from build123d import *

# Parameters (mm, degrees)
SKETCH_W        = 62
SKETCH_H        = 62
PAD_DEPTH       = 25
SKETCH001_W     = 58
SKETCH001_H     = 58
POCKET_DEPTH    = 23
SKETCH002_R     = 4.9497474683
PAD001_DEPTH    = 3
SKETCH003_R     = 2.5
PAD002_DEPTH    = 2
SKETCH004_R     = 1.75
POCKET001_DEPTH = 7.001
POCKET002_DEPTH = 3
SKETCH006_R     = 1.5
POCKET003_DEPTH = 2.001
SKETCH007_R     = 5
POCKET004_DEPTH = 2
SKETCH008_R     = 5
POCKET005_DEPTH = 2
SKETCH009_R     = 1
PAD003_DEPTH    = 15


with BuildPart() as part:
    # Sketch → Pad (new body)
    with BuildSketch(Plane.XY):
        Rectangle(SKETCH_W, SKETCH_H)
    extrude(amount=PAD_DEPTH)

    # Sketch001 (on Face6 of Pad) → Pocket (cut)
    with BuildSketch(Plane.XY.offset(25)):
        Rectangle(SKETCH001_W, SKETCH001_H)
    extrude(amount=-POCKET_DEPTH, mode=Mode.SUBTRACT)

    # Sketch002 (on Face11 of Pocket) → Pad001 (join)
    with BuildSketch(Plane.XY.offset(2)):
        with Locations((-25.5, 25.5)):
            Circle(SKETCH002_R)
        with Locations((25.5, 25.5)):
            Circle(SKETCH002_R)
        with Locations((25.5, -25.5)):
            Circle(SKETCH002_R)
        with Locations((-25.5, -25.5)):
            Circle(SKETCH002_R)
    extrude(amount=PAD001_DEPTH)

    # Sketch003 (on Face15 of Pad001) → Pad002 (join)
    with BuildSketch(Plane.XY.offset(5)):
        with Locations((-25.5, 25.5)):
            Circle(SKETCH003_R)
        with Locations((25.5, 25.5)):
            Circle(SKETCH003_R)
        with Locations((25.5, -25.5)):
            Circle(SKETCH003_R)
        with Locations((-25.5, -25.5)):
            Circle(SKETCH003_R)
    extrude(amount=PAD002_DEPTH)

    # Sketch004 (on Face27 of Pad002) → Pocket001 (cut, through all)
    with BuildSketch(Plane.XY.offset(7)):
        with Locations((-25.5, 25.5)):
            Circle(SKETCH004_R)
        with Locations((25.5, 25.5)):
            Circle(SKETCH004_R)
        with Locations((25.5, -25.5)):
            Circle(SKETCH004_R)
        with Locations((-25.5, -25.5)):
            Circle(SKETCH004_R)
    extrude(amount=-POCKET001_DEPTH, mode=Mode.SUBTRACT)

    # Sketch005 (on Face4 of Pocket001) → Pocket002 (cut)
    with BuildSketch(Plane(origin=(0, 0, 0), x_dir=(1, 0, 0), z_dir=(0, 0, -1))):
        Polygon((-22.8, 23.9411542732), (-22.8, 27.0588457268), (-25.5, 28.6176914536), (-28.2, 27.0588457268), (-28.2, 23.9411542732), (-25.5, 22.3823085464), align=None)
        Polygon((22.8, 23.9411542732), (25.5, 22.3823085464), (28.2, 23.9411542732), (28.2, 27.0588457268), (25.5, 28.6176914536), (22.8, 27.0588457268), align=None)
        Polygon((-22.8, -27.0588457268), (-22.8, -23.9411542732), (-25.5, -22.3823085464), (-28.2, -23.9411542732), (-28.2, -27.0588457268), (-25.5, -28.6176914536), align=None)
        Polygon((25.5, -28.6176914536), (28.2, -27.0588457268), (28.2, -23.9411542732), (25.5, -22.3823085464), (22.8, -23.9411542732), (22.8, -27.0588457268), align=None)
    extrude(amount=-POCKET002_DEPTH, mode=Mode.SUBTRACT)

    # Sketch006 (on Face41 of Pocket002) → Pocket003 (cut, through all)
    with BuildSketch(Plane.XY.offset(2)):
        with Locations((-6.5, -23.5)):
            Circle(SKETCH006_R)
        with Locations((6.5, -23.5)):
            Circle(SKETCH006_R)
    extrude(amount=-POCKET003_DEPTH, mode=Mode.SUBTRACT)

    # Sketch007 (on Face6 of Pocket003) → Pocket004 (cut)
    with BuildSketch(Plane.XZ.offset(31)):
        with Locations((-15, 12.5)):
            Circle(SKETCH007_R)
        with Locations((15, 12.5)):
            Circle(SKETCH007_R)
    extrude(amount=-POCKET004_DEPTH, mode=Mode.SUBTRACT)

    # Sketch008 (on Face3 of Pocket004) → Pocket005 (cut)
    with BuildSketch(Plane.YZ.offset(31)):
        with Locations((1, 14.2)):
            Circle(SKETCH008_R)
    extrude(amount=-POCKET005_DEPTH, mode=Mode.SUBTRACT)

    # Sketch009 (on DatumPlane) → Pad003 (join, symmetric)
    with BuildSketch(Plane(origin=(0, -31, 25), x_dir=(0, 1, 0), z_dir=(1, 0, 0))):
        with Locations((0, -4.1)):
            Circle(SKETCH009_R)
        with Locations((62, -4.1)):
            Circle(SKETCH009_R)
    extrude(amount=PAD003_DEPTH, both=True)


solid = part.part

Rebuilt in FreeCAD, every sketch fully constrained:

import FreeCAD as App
import Part
import Sketcher

V = App.Vector
Q = App.Units.Quantity

doc = App.newDocument("Part")
body = doc.addObject("PartDesign::Body", "Body")

# Sketch on XY plane
sketch1 = body.newObject("Sketcher::SketchObject", "Sketch")
sketch1.AttachmentSupport = (doc.getObject("XY_Plane"), [""])
sketch1.MapMode = "FlatFace"
sketch1.addGeometry([
    Part.LineSegment(V(-31, 31, 0), V(-31, -31, 0)),
    Part.LineSegment(V(-31, -31, 0), V(31, -31, 0)),
    Part.LineSegment(V(31, -31, 0), V(31, 31, 0)),
    Part.LineSegment(V(31, 31, 0), V(-31, 31, 0)),
], False)
sketch1.addConstraint([
    Sketcher.Constraint("Coincident", 0, 2, 1, 1),
    Sketcher.Constraint("Coincident", 1, 2, 2, 1),
    Sketcher.Constraint("Coincident", 2, 2, 3, 1),
    Sketcher.Constraint("Coincident", 3, 2, 0, 1),
    Sketcher.Constraint("Vertical", 0),
    Sketcher.Constraint("Horizontal", 1),
    Sketcher.Constraint("Vertical", 2),
    Sketcher.Constraint("Horizontal", 3),
    Sketcher.Constraint("Symmetric", 0, 2, 2, 2, -1, 1),
    Sketcher.Constraint("Equal", 3, 0),
    Sketcher.Constraint("DistanceX", 1, 1, 1, 2, 62.0),
])
pad1 = body.newObject("PartDesign::Pad", "Pad")
pad1.Profile = sketch1
pad1.Length = 25

# Sketch on XY plane
sketch2 = body.newObject("Sketcher::SketchObject", "Sketch001")
sketch2.AttachmentSupport = (doc.getObject("XY_Plane"), [""])
sketch2.MapMode = "FlatFace"
sketch2.AttachmentOffset = App.Placement(V(0, 0, 25), App.Rotation())
sketch2.addGeometry([
    Part.LineSegment(V(-29, 29, 0), V(-29, -29, 0)),
    Part.LineSegment(V(-29, -29, 0), V(29, -29, 0)),
    Part.LineSegment(V(29, -29, 0), V(29, 29, 0)),
    Part.LineSegment(V(29, 29, 0), V(-29, 29, 0)),
], False)
sketch2.addConstraint([
    Sketcher.Constraint("Coincident", 0, 2, 1, 1),
    Sketcher.Constraint("Coincident", 1, 2, 2, 1),
    Sketcher.Constraint("Coincident", 2, 2, 3, 1),
    Sketcher.Constraint("Coincident", 3, 2, 0, 1),
    Sketcher.Constraint("Vertical", 0),
    Sketcher.Constraint("Horizontal", 1),
    Sketcher.Constraint("Vertical", 2),
    Sketcher.Constraint("Horizontal", 3),
    Sketcher.Constraint("Symmetric", 0, 2, 2, 2, -1, 1),
    Sketcher.Constraint("Equal", 3, 0),
    Sketcher.Constraint("DistanceX", 1, 1, 1, 2, 58.0),
])
pocket1 = body.newObject("PartDesign::Pocket", "Pocket")
pocket1.Profile = sketch2
pocket1.Length = 23

# Sketch on XY plane
sketch3 = body.newObject("Sketcher::SketchObject", "Sketch002")
sketch3.AttachmentSupport = (doc.getObject("XY_Plane"), [""])
sketch3.MapMode = "FlatFace"
sketch3.AttachmentOffset = App.Placement(V(0, 0, 2), App.Rotation())
sketch3.addGeometry([
    Part.Circle(V(-25.5, 25.5, 0), V(0, 0, 1), 4.9),
    Part.Circle(V(25.5, 25.5, 0), V(0, 0, 1), 4.9),
    Part.Circle(V(25.5, -25.5, 0), V(0, 0, 1), 4.9),
    Part.Circle(V(-25.5, -25.5, 0), V(0, 0, 1), 4.9),
], False)
sketch3.addConstraint([
    Sketcher.Constraint("Equal", 0, 1),
    Sketcher.Constraint("Equal", 1, 2),
    Sketcher.Constraint("Equal", 2, 3),
    Sketcher.Constraint("Symmetric", 0, 3, 2, 3, -1, 1),
    Sketcher.Constraint("Symmetric", 1, 3, 3, 3, -1, 1),
    Sketcher.Constraint("Symmetric", 0, 3, 1, 3, -2),
    Sketcher.Constraint("DistanceX", 0, 3, 1, 3, 51.0),
    Sketcher.Constraint("DistanceY", 2, 3, 1, 3, 51.0),
    Sketcher.Constraint("Diameter", 0, 9.899495),
])
pad2 = body.newObject("PartDesign::Pad", "Pad001")
pad2.Profile = sketch3
pad2.Length = 3

# Sketch on XY plane
sketch4 = body.newObject("Sketcher::SketchObject", "Sketch003")
sketch4.AttachmentSupport = (doc.getObject("XY_Plane"), [""])
sketch4.MapMode = "FlatFace"
sketch4.AttachmentOffset = App.Placement(V(0, 0, 5), App.Rotation())
sketch4.addGeometry([
    Part.Circle(V(-25.5, 25.5, 0), V(0, 0, 1), 2.5),
    Part.Circle(V(25.5, 25.5, 0), V(0, 0, 1), 2.5),
    Part.Circle(V(25.5, -25.5, 0), V(0, 0, 1), 2.5),
    Part.Circle(V(-25.5, -25.5, 0), V(0, 0, 1), 2.5),
], False)
sketch4.addConstraint([
    Sketcher.Constraint("Equal", 0, 1),
    Sketcher.Constraint("Equal", 1, 2),
    Sketcher.Constraint("Equal", 2, 3),
    Sketcher.Constraint("Symmetric", 0, 3, 2, 3, -1, 1),
    Sketcher.Constraint("Symmetric", 1, 3, 3, 3, -1, 1),
    Sketcher.Constraint("Symmetric", 0, 3, 1, 3, -2),
    Sketcher.Constraint("Diameter", 0, 5.0),
    Sketcher.Constraint("DistanceX", 0, 3, 1, 3, 51.0),
    Sketcher.Constraint("DistanceY", 2, 3, 1, 3, 51.0),
])
pad3 = body.newObject("PartDesign::Pad", "Pad002")
pad3.Profile = sketch4
pad3.Length = 2

# Sketch on XY plane
sketch5 = body.newObject("Sketcher::SketchObject", "Sketch004")
sketch5.AttachmentSupport = (doc.getObject("XY_Plane"), [""])
sketch5.MapMode = "FlatFace"
sketch5.AttachmentOffset = App.Placement(V(0, 0, 7), App.Rotation())
sketch5.addGeometry([
    Part.Circle(V(-25.5, 25.5, 0), V(0, 0, 1), 1.8),
    Part.Circle(V(25.5, 25.5, 0), V(0, 0, 1), 1.8),
    Part.Circle(V(25.5, -25.5, 0), V(0, 0, 1), 1.8),
    Part.Circle(V(-25.5, -25.5, 0), V(0, 0, 1), 1.8),
], False)
sketch5.addConstraint([
    Sketcher.Constraint("Equal", 0, 1),
    Sketcher.Constraint("Equal", 1, 2),
    Sketcher.Constraint("Equal", 2, 3),
    Sketcher.Constraint("Symmetric", 0, 3, 2, 3, -1, 1),
    Sketcher.Constraint("Symmetric", 1, 3, 3, 3, -1, 1),
    Sketcher.Constraint("Symmetric", 0, 3, 1, 3, -2),
    Sketcher.Constraint("Diameter", 0, 3.5),
    Sketcher.Constraint("DistanceX", 0, 3, 1, 3, 51.0),
    Sketcher.Constraint("DistanceY", 2, 3, 1, 3, 51.0),
])
pocket2 = body.newObject("PartDesign::Pocket", "Pocket001")
pocket2.Profile = sketch5
pocket2.Type = "ThroughAll"

# Sketch on XY plane
sketch6 = body.newObject("Sketcher::SketchObject", "Sketch005")
sketch6.AttachmentSupport = (doc.getObject("XY_Plane"), [""])
sketch6.MapMode = "FlatFace"
sketch6.addGeometry([
    Part.LineSegment(V(-22.8, -23.9, 0), V(-22.8, -27.1, 0)),  # 0
    Part.LineSegment(V(-22.8, -27.1, 0), V(-25.5, -28.6, 0)),  # 1
    Part.LineSegment(V(-25.5, -28.6, 0), V(-28.2, -27.1, 0)),  # 2
    Part.LineSegment(V(-28.2, -27.1, 0), V(-28.2, -23.9, 0)),  # 3
    Part.LineSegment(V(-28.2, -23.9, 0), V(-25.5, -22.4, 0)),  # 4
    Part.LineSegment(V(-25.5, -22.4, 0), V(-22.8, -23.9, 0)),  # 5
    Part.LineSegment(V(22.8, -23.9, 0), V(25.5, -22.4, 0)),  # 6
    Part.LineSegment(V(25.5, -22.4, 0), V(28.2, -23.9, 0)),  # 7
    Part.LineSegment(V(28.2, -23.9, 0), V(28.2, -27.1, 0)),  # 8
    Part.LineSegment(V(28.2, -27.1, 0), V(25.5, -28.6, 0)),  # 9
    Part.LineSegment(V(25.5, -28.6, 0), V(22.8, -27.1, 0)),  # 10
    Part.LineSegment(V(22.8, -27.1, 0), V(22.8, -23.9, 0)),  # 11
    Part.LineSegment(V(-22.8, 27.1, 0), V(-22.8, 23.9, 0)),  # 12
    Part.LineSegment(V(-22.8, 23.9, 0), V(-25.5, 22.4, 0)),  # 13
    Part.LineSegment(V(-25.5, 22.4, 0), V(-28.2, 23.9, 0)),  # 14
    Part.LineSegment(V(-28.2, 23.9, 0), V(-28.2, 27.1, 0)),  # 15
    Part.LineSegment(V(-28.2, 27.1, 0), V(-25.5, 28.6, 0)),  # 16
    Part.LineSegment(V(-25.5, 28.6, 0), V(-22.8, 27.1, 0)),  # 17
    Part.LineSegment(V(25.5, 28.6, 0), V(28.2, 27.1, 0)),  # 18
    Part.LineSegment(V(28.2, 27.1, 0), V(28.2, 23.9, 0)),  # 19
    Part.LineSegment(V(28.2, 23.9, 0), V(25.5, 22.4, 0)),  # 20
    Part.LineSegment(V(25.5, 22.4, 0), V(22.8, 23.9, 0)),  # 21
    Part.LineSegment(V(22.8, 23.9, 0), V(22.8, 27.1, 0)),  # 22
    Part.LineSegment(V(22.8, 27.1, 0), V(25.5, 28.6, 0)),  # 23
], False)
sketch6.addConstraint([
    Sketcher.Constraint("Coincident", 0, 2, 1, 1),
    Sketcher.Constraint("Coincident", 1, 2, 2, 1),
    Sketcher.Constraint("Coincident", 2, 2, 3, 1),
    Sketcher.Constraint("Coincident", 3, 2, 4, 1),
    Sketcher.Constraint("Coincident", 4, 2, 5, 1),
    Sketcher.Constraint("Coincident", 5, 2, 0, 1),
    Sketcher.Constraint("Coincident", 6, 2, 7, 1),
    Sketcher.Constraint("Coincident", 7, 2, 8, 1),
    Sketcher.Constraint("Coincident", 8, 2, 9, 1),
    Sketcher.Constraint("Coincident", 9, 2, 10, 1),
    Sketcher.Constraint("Coincident", 10, 2, 11, 1),
    Sketcher.Constraint("Coincident", 11, 2, 6, 1),
    Sketcher.Constraint("Coincident", 12, 2, 13, 1),
    Sketcher.Constraint("Coincident", 13, 2, 14, 1),
    Sketcher.Constraint("Coincident", 14, 2, 15, 1),
    Sketcher.Constraint("Coincident", 15, 2, 16, 1),
    Sketcher.Constraint("Coincident", 16, 2, 17, 1),
    Sketcher.Constraint("Coincident", 17, 2, 12, 1),
    Sketcher.Constraint("Coincident", 18, 2, 19, 1),
    Sketcher.Constraint("Coincident", 19, 2, 20, 1),
    Sketcher.Constraint("Coincident", 20, 2, 21, 1),
    Sketcher.Constraint("Coincident", 21, 2, 22, 1),
    Sketcher.Constraint("Coincident", 22, 2, 23, 1),
    Sketcher.Constraint("Coincident", 23, 2, 18, 1),
    Sketcher.Constraint("Vertical", 0),
    Sketcher.Constraint("Vertical", 3),
    Sketcher.Constraint("Vertical", 8),
    Sketcher.Constraint("Vertical", 11),
    Sketcher.Constraint("Vertical", 12),
    Sketcher.Constraint("Vertical", 15),
    Sketcher.Constraint("Vertical", 19),
    Sketcher.Constraint("Vertical", 22),
    Sketcher.Constraint("Symmetric", 11, 2, 12, 2, -1, 1),
    Sketcher.Constraint("Symmetric", 6, 2, 13, 2, -1, 1),
    Sketcher.Constraint("Symmetric", 7, 2, 14, 2, -1, 1),
    Sketcher.Constraint("Symmetric", 9, 2, 16, 2, -1, 1),
    Sketcher.Constraint("Symmetric", 2, 2, 18, 2, -1, 1),
    Sketcher.Constraint("Symmetric", 4, 2, 20, 2, -1, 1),
    Sketcher.Constraint("Symmetric", 5, 2, 21, 2, -1, 1),
    Sketcher.Constraint("Symmetric", 1, 2, 23, 2, -1, 1),
    Sketcher.Constraint("Symmetric", 4, 2, 6, 2, -2),
    Sketcher.Constraint("Symmetric", 3, 2, 7, 2, -2),
    Sketcher.Constraint("Symmetric", 1, 2, 9, 2, -2),
    Sketcher.Constraint("Symmetric", 0, 2, 10, 2, -2),
    Sketcher.Constraint("Parallel", 1, 4),
    Sketcher.Constraint("Parallel", 2, 5),
    Sketcher.Constraint("Parallel", 4, 6),
    Sketcher.Constraint("Parallel", 5, 7),
    Sketcher.Constraint("Parallel", 6, 9),
    Sketcher.Constraint("Parallel", 13, 16),
    Sketcher.Constraint("Parallel", 14, 17),
    Sketcher.Constraint("Parallel", 16, 20),
    Sketcher.Constraint("Parallel", 20, 23),
    Sketcher.Constraint("Horizontal", 0, 2, 2, 2),
    Sketcher.Constraint("Horizontal", 3, 2, 5, 2),
    Sketcher.Constraint("Angle", 1, Q("-150 deg")),
    Sketcher.Constraint("DistanceX", 4, 2, 6, 2, 51.0),
    Sketcher.Constraint("DistanceY", 0, 2, 12, 2, 51.0),
    Sketcher.Constraint("DistanceX", 0, 2, -1, 1, 22.8),
    Sketcher.Constraint("DistanceY", 0, 2, 0, 1, 3.117691),
])
pocket3 = body.newObject("PartDesign::Pocket", "Pocket002")
pocket3.Profile = sketch6
pocket3.Length = 3
pocket3.Reversed = True

# Sketch on XY plane
sketch7 = body.newObject("Sketcher::SketchObject", "Sketch006")
sketch7.AttachmentSupport = (doc.getObject("XY_Plane"), [""])
sketch7.MapMode = "FlatFace"
sketch7.AttachmentOffset = App.Placement(V(0, 0, 2), App.Rotation())
sketch7.addGeometry([
    Part.Circle(V(-6.5, -23.5, 0), V(0, 0, 1), 1.5),
    Part.Circle(V(6.5, -23.5, 0), V(0, 0, 1), 1.5),
], False)
sketch7.addConstraint([
    Sketcher.Constraint("Equal", 0, 1),
    Sketcher.Constraint("Symmetric", 0, 3, 1, 3, -2),
    Sketcher.Constraint("Diameter", 0, 3.0),
    Sketcher.Constraint("DistanceX", 0, 3, 1, 3, 13.0),
    Sketcher.Constraint("DistanceY", 0, 3, -1, 1, 23.5),
])
pocket4 = body.newObject("PartDesign::Pocket", "Pocket003")
pocket4.Profile = sketch7
pocket4.Type = "ThroughAll"

# Sketch on XZ plane
sketch8 = body.newObject("Sketcher::SketchObject", "Sketch007")
sketch8.AttachmentSupport = (doc.getObject("XZ_Plane"), [""])
sketch8.MapMode = "FlatFace"
sketch8.AttachmentOffset = App.Placement(V(0, 0, 31), App.Rotation())
sketch8.addGeometry([
    Part.Circle(V(-15, 12, 0), V(0, 0, 1), 5),
    Part.Circle(V(15, 12, 0), V(0, 0, 1), 5),
], False)
sketch8.addConstraint([
    Sketcher.Constraint("Equal", 0, 1),
    Sketcher.Constraint("Symmetric", 0, 3, 1, 3, -2),
    Sketcher.Constraint("Diameter", 0, 10.0),
    Sketcher.Constraint("DistanceX", 0, 3, -1, 1, 15.0),
    Sketcher.Constraint("DistanceY", -1, 1, 0, 3, 12.5),
])
pocket5 = body.newObject("PartDesign::Pocket", "Pocket004")
pocket5.Profile = sketch8
pocket5.Length = 2

# Sketch on YZ plane
sketch9 = body.newObject("Sketcher::SketchObject", "Sketch008")
sketch9.AttachmentSupport = (doc.getObject("YZ_Plane"), [""])
sketch9.MapMode = "FlatFace"
sketch9.AttachmentOffset = App.Placement(V(0, 0, 31), App.Rotation())
sketch9.addGeometry(Part.Circle(V(1, 14, 0), V(0, 0, 1), 5), False)
sketch9.addConstraint([
    Sketcher.Constraint("Diameter", 0, 10.0),
    Sketcher.Constraint("DistanceX", -1, 1, 0, 3, 1.0),
    Sketcher.Constraint("DistanceY", -1, 1, 0, 3, 14.2),
])
pocket6 = body.newObject("PartDesign::Pocket", "Pocket005")
pocket6.Profile = sketch9
pocket6.Length = 2

# Sketch on YZ plane
sketch10 = body.newObject("Sketcher::SketchObject", "Sketch009")
sketch10.AttachmentSupport = (doc.getObject("YZ_Plane"), [""])
sketch10.MapMode = "FlatFace"
sketch10.addGeometry([
    Part.Circle(V(-31, 20.9, 0), V(0, 0, 1), 1),
    Part.Circle(V(31, 20.9, 0), V(0, 0, 1), 1),
], False)
sketch10.addConstraint([
    Sketcher.Constraint("Equal", 0, 1),
    Sketcher.Constraint("Symmetric", 0, 3, 1, 3, -2),
    Sketcher.Constraint("Diameter", 0, 2.0),
    Sketcher.Constraint("DistanceX", 0, 3, -1, 1, 31.0),
    Sketcher.Constraint("DistanceY", -1, 1, 0, 3, 20.9),
])
pad4 = body.newObject("PartDesign::Pad", "Pad003")
pad4.Profile = sketch10
pad4.Length = 30
pad4.Midplane = True

doc.recompute()
